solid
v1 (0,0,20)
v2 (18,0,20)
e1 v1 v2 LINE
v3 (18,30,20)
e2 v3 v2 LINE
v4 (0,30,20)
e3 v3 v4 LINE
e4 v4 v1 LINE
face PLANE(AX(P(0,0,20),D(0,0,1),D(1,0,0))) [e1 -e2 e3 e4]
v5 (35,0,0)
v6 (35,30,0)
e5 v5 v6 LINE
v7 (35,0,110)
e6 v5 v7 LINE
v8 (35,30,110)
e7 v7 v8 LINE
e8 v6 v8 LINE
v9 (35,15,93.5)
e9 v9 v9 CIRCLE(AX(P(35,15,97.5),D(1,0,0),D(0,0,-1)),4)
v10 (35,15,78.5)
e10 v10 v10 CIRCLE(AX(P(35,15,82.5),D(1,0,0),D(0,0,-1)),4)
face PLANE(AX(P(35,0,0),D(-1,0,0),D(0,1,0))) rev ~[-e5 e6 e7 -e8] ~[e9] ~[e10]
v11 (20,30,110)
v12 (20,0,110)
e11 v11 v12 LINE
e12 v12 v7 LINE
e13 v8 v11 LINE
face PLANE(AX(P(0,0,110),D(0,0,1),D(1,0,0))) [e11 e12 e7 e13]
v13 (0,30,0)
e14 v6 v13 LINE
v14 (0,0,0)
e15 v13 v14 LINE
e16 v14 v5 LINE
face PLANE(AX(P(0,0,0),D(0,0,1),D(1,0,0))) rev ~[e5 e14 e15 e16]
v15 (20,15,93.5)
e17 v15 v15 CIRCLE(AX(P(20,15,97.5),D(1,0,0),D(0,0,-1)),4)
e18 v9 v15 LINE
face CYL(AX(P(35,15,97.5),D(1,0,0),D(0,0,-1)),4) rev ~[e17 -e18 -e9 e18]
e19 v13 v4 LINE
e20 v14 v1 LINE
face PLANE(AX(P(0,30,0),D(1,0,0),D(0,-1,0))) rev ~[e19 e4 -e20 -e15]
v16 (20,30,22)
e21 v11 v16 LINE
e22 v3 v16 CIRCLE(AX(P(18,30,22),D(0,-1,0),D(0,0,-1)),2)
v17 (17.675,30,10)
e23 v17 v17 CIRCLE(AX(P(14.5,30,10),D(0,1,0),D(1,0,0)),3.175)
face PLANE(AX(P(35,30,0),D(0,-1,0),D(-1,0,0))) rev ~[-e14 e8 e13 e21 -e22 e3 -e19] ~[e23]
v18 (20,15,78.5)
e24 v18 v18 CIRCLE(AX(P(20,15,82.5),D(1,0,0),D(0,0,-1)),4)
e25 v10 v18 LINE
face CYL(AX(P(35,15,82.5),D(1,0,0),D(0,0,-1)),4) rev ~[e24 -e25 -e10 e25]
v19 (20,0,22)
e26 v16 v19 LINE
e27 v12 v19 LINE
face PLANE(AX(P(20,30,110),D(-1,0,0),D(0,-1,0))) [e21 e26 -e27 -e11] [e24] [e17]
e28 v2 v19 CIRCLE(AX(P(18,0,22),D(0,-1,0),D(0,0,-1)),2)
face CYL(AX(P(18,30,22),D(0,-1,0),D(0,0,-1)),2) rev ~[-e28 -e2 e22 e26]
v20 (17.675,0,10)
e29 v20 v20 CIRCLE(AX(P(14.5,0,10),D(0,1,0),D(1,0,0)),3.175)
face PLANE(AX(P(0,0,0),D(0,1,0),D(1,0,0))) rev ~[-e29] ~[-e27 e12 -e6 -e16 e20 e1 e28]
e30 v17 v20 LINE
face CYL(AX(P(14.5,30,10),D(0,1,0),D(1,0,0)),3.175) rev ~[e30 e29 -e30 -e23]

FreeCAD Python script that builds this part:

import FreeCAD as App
import Part
import Sketcher


def edges_at(feature, points):
    """Names of the edges that pass closest to the given points."""
    edges = feature.Shape.Edges
    near = lambda p: min(range(len(edges)), key=lambda i: edges[i].distToShape(Part.Vertex(*p))[0])
    return sorted({f"Edge{near(p) + 1}" for p in points})

doc = App.newDocument("Part")
body = doc.addObject("PartDesign::Body", "Body")

sketch1 = body.newObject("Sketcher::SketchObject", "Sketch")
sketch1.AttachmentSupport = (doc.getObject("XY_Plane"), [""])
sketch1.MapMode = "FlatFace"
sketch1.addGeometry([
    Part.LineSegment(App.Vector(0, 30, 0), App.Vector(0, 0, 0)),
    Part.LineSegment(App.Vector(0, 0, 0), App.Vector(35, 0, 0)),
    Part.LineSegment(App.Vector(35, 0, 0), App.Vector(35, 30, 0)),
    Part.LineSegment(App.Vector(35, 30, 0), App.Vector(0, 30, 0)),
], False)
sketch1.addConstraint([
    Sketcher.Constraint("Coincident", 0, 2, 1, 1),
    Sketcher.Constraint("Coincident", 1, 2, 2, 1),
    Sketcher.Constraint("Coincident", 2, 2, 3, 1),
    Sketcher.Constraint("Coincident", 3, 2, 0, 1),
    Sketcher.Constraint("Vertical", 0),
    Sketcher.Constraint("Horizontal", 1),
    Sketcher.Constraint("Vertical", 2),
    Sketcher.Constraint("Horizontal", 3),
    Sketcher.Constraint("Coincident", 0, 2, -1, 1),
    Sketcher.Constraint("DistanceX", 1, 1, 1, 2, 35.0),
    Sketcher.Constraint("DistanceY", 0, 2, 0, 1, 30.0),
])
pad1 = body.newObject("PartDesign::Pad", "Pad")
pad1.Profile = sketch1
pad1.Length = 110

sketch2 = body.newObject("Sketcher::SketchObject", "Sketch001")
sketch2.AttachmentSupport = (doc.getObject("XY_Plane"), [""])
sketch2.MapMode = "FlatFace"
sketch2.AttachmentOffset = App.Placement(App.Vector(0, 0, 110), App.Rotation())
sketch2.addGeometry([
    Part.LineSegment(App.Vector(0, 30, 0), App.Vector(0, 0, 0)),
    Part.LineSegment(App.Vector(0, 0, 0), App.Vector(20, 0, 0)),
    Part.LineSegment(App.Vector(20, 0, 0), App.Vector(20, 30, 0)),
    Part.LineSegment(App.Vector(20, 30, 0), App.Vector(0, 30, 0)),
], False)
sketch2.addConstraint([
    Sketcher.Constraint("Coincident", 0, 2, 1, 1),
    Sketcher.Constraint("Coincident", 1, 2, 2, 1),
    Sketcher.Constraint("Coincident", 2, 2, 3, 1),
    Sketcher.Constraint("Coincident", 3, 2, 0, 1),
    Sketcher.Constraint("Vertical", 0),
    Sketcher.Constraint("Horizontal", 1),
    Sketcher.Constraint("Vertical", 2),
    Sketcher.Constraint("Horizontal", 3),
    Sketcher.Constraint("Coincident", 0, 2, -1, 1),
    Sketcher.Constraint("DistanceX", 1, 1, 1, 2, 20.0),
    Sketcher.Constraint("DistanceY", 0, 2, 0, 1, 30.0),
])
pocket1 = body.newObject("PartDesign::Pocket", "Pocket")
pocket1.Profile = sketch2
pocket1.Length = 90

sketch3 = body.newObject("Sketcher::SketchObject", "Sketch002")
sketch3.AttachmentSupport = (doc.getObject("YZ_Plane"), [""])
sketch3.MapMode = "FlatFace"
sketch3.AttachmentOffset = App.Placement(App.Vector(0, 0, 35), App.Rotation())
sketch3.addGeometry([
    Part.Circle(App.Vector(15, 97.5, 0), App.Vector(0, 0, 1), 4),
    Part.Circle(App.Vector(15, 82.5, 0), App.Vector(0, 0, 1), 4),
], False)
sketch3.addConstraint([
    Sketcher.Constraint("Equal", 0, 1),
    Sketcher.Constraint("Vertical", 0, 3, 1, 3),
    Sketcher.Constraint("Diameter", 0, 8.0),
    Sketcher.Constraint("DistanceX", -1, 1, 0, 3, 15.0),
    Sketcher.Constraint("DistanceY", 1, 3, 0, 3, 15.0),
    Sketcher.Constraint("DistanceY", -1, 1, 0, 3, 97.5),
])
pocket2 = body.newObject("PartDesign::Pocket", "Pocket001")
pocket2.Profile = sketch3
pocket2.Type = "UpToFirst"

sketch4 = body.newObject("Sketcher::SketchObject", "Sketch003")
sketch4.AttachmentSupport = (doc.getObject("XZ_Plane"), [""])
sketch4.MapMode = "FlatFace"
sketch4.AttachmentOffset = App.Placement(App.Vector(0, 0, -30), App.Rotation())
sketch4.addGeometry(Part.Circle(App.Vector(14.5, 10, 0), App.Vector(0, 0, 1), 3.2), False)
sketch4.addConstraint([
    Sketcher.Constraint("Diameter", 0, 6.35),
    Sketcher.Constraint("DistanceY", -1, 1, 0, 3, 10.0),
    Sketcher.Constraint("DistanceX", -1, 1, 0, 3, 14.5),
])
pocket3 = body.newObject("PartDesign::Pocket", "Pocket002")
pocket3.Profile = sketch4
pocket3.Type = "UpToFirst"
pocket3.Reversed = True
doc.recompute()

fillet = body.newObject("PartDesign::Fillet", "Fillet")
fillet.Base = (pocket3, edges_at(pocket3, [(20, 15, 20)]))
fillet.Radius = 2

doc.recompute()
